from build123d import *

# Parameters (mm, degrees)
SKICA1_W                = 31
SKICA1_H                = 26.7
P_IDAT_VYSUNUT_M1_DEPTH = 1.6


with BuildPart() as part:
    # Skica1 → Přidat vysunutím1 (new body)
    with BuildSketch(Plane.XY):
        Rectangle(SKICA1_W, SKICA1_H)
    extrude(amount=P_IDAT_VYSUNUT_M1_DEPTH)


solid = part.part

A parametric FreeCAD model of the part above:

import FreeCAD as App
import Part
import Sketcher
from FreeCAD import Vector
Q = App.Units.Quantity


def add_polygon(sketch, points):
    """Adds a closed chain of lines whose ends are joined by coincident constraints."""
    first, n = sketch.GeometryCount, len(points)
    for a, b in zip(points, points[1:] + points[:1]):
        sketch.addGeometry(Part.LineSegment(App.Vector(*a, 0), App.Vector(*b, 0)), False)
    for i in range(n):
        sketch.addConstraint(Sketcher.Constraint("Coincident", first + i, 2, first + (i + 1) % n, 1))

doc = App.newDocument("Part")
params = doc.addObject("Spreadsheet::Sheet", "Params")
for row, (alias, value) in enumerate([
    ("sketch1_width", "31 mm"),
    ("sketch1_height", "26.7 mm"),
    ("pad1_length", "1.6 mm"),
], start=1):
    params.set(f"A{row}", alias)
    params.set(f"B{row}", "=" + value)
    params.setAlias(f"B{row}", alias)

body = doc.addObject("PartDesign::Body", "Body")

sketch1 = body.newObject("Sketcher::SketchObject", "Sketch")
sketch1.AttachmentSupport = (doc.getObject("XY_Plane"), [""])
sketch1.MapMode = "FlatFace"
add_polygon(sketch1, [(-15.5, 13.35), (-15.5, -13.35), (15.5, -13.35), (15.5, 13.35)])
sketch1.addConstraint([
    Sketcher.Constraint("Vertical", 0),
    Sketcher.Constraint("Horizontal", 1),
    Sketcher.Constraint("Vertical", 2),
    Sketcher.Constraint("Horizontal", 3),
    Sketcher.Constraint("Symmetric", 0, 2, 2, 2, -1, 1),
    Sketcher.Constraint("DistanceX", 1, 1, 1, 2, Q("31 mm")),
    Sketcher.Constraint("DistanceY", 0, 2, 0, 1, Q("26.7 mm")),
])
sketch1.setExpression("Constraints[9]", "Params.sketch1_width")
sketch1.setExpression("Constraints[10]", "Params.sketch1_height")
pad1 = body.newObject("PartDesign::Pad", "Pad")
pad1.Profile = sketch1
pad1.setExpression("Length", "Params.pad1_length")

doc.recompute()
